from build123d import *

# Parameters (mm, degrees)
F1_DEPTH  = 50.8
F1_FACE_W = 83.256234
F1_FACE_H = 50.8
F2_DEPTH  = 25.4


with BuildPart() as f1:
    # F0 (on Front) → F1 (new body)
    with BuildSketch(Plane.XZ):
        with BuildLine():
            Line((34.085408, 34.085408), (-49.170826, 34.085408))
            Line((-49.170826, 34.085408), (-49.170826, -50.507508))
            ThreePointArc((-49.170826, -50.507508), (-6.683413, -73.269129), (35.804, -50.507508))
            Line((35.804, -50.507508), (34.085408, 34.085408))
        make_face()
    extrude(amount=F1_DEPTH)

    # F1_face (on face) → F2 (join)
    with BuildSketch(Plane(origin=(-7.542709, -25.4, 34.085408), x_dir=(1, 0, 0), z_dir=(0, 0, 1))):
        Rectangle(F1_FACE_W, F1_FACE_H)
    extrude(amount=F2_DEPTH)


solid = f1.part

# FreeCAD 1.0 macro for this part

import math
import FreeCAD as App
import Part
import Sketcher
Q = App.Units.Quantity


def add_polygon(sketch, points):
    """Adds a closed chain of lines whose ends are joined by coincident constraints."""
    first, n = sketch.GeometryCount, len(points)
    for a, b in zip(points, points[1:] + points[:1]):
        sketch.addGeometry(Part.LineSegment(App.Vector(*a, 0), App.Vector(*b, 0)), False)
    for i in range(n):
        sketch.addConstraint(Sketcher.Constraint("Coincident", first + i, 2, first + (i + 1) % n, 1))

doc = App.newDocument("Part")
body = doc.addObject("PartDesign::Body", "Body")

sketch1 = body.newObject("Sketcher::SketchObject", "Sketch")
sketch1.AttachmentSupport = (doc.getObject("XZ_Plane"), [""])
sketch1.MapMode = "FlatFace"
sketch1.addGeometry([
    Part.LineSegment(App.Vector(34, 34, 0), App.Vector(-49, 34, 0)),
    Part.LineSegment(App.Vector(-49, 34, 0), App.Vector(-49, -51, 0)),
    Part.ArcOfCircle(Part.Circle(App.Vector(-7, -22, 0), App.Vector(0, 0, 1), 51), math.radians(-146), math.radians(-34)),
    Part.LineSegment(App.Vector(36, -51, 0), App.Vector(34, 34, 0)),
], False)
sketch1.addConstraint([
    Sketcher.Constraint("Coincident", 0, 2, 1, 1),
    Sketcher.Constraint("Coincident", 1, 2, 2, 1),
    Sketcher.Constraint("Coincident", 2, 2, 3, 1),
    Sketcher.Constraint("Coincident", 3, 2, 0, 1),
    Sketcher.Constraint("Horizontal", 0),
    Sketcher.Constraint("Vertical", 1),
    Sketcher.Constraint("Horizontal", 1, 2, 2, 2),
    Sketcher.Constraint("Radius", 2, 51.034846),
    Sketcher.Constraint("DistanceX", -1, 1, 2, 2, 35.804),
    Sketcher.Constraint("Distance", 3, 84.610372),
    Sketcher.Constraint("DistanceX", 0, 2, 0, 1, 83.256234),
    Sketcher.Constraint("DistanceY", 1, 2, 1, 1, 84.592916),
    Sketcher.Constraint("DistanceY", 2, 2, -1, 1, 50.507508),
])
pad1 = body.newObject("PartDesign::Pad", "Pad")
pad1.Profile = sketch1
pad1.Length = Q("2 in")

sketch2 = body.newObject("Sketcher::SketchObject", "Sketch001")
sketch2.AttachmentSupport = (doc.getObject("XY_Plane"), [""])
sketch2.MapMode = "FlatFace"
sketch2.AttachmentOffset = App.Placement(App.Vector(0, 0, 34.085408), App.Rotation())
add_polygon(sketch2, [(-49, 0), (-49, -51), (34, -51), (34, 0)])
sketch2.addConstraint([
    Sketcher.Constraint("Vertical", 0),
    Sketcher.Constraint("Horizontal", 1),
    Sketcher.Constraint("Vertical", 2),
    Sketcher.Constraint("Horizontal", 3),
    Sketcher.Constraint("PointOnObject", 2, 2, -1),
    Sketcher.Constraint("DistanceY", 0, 2, 0, 1, Q("2 in")),
    Sketcher.Constraint("DistanceX", 1, 1, 1, 2, 83.256234),
    Sketcher.Constraint("DistanceX", 0, 2, -1, 1, 49.170826),
])
pad2 = body.newObject("PartDesign::Pad", "Pad001")
pad2.Profile = sketch2
pad2.Length = Q("1 in")

doc.recompute()
